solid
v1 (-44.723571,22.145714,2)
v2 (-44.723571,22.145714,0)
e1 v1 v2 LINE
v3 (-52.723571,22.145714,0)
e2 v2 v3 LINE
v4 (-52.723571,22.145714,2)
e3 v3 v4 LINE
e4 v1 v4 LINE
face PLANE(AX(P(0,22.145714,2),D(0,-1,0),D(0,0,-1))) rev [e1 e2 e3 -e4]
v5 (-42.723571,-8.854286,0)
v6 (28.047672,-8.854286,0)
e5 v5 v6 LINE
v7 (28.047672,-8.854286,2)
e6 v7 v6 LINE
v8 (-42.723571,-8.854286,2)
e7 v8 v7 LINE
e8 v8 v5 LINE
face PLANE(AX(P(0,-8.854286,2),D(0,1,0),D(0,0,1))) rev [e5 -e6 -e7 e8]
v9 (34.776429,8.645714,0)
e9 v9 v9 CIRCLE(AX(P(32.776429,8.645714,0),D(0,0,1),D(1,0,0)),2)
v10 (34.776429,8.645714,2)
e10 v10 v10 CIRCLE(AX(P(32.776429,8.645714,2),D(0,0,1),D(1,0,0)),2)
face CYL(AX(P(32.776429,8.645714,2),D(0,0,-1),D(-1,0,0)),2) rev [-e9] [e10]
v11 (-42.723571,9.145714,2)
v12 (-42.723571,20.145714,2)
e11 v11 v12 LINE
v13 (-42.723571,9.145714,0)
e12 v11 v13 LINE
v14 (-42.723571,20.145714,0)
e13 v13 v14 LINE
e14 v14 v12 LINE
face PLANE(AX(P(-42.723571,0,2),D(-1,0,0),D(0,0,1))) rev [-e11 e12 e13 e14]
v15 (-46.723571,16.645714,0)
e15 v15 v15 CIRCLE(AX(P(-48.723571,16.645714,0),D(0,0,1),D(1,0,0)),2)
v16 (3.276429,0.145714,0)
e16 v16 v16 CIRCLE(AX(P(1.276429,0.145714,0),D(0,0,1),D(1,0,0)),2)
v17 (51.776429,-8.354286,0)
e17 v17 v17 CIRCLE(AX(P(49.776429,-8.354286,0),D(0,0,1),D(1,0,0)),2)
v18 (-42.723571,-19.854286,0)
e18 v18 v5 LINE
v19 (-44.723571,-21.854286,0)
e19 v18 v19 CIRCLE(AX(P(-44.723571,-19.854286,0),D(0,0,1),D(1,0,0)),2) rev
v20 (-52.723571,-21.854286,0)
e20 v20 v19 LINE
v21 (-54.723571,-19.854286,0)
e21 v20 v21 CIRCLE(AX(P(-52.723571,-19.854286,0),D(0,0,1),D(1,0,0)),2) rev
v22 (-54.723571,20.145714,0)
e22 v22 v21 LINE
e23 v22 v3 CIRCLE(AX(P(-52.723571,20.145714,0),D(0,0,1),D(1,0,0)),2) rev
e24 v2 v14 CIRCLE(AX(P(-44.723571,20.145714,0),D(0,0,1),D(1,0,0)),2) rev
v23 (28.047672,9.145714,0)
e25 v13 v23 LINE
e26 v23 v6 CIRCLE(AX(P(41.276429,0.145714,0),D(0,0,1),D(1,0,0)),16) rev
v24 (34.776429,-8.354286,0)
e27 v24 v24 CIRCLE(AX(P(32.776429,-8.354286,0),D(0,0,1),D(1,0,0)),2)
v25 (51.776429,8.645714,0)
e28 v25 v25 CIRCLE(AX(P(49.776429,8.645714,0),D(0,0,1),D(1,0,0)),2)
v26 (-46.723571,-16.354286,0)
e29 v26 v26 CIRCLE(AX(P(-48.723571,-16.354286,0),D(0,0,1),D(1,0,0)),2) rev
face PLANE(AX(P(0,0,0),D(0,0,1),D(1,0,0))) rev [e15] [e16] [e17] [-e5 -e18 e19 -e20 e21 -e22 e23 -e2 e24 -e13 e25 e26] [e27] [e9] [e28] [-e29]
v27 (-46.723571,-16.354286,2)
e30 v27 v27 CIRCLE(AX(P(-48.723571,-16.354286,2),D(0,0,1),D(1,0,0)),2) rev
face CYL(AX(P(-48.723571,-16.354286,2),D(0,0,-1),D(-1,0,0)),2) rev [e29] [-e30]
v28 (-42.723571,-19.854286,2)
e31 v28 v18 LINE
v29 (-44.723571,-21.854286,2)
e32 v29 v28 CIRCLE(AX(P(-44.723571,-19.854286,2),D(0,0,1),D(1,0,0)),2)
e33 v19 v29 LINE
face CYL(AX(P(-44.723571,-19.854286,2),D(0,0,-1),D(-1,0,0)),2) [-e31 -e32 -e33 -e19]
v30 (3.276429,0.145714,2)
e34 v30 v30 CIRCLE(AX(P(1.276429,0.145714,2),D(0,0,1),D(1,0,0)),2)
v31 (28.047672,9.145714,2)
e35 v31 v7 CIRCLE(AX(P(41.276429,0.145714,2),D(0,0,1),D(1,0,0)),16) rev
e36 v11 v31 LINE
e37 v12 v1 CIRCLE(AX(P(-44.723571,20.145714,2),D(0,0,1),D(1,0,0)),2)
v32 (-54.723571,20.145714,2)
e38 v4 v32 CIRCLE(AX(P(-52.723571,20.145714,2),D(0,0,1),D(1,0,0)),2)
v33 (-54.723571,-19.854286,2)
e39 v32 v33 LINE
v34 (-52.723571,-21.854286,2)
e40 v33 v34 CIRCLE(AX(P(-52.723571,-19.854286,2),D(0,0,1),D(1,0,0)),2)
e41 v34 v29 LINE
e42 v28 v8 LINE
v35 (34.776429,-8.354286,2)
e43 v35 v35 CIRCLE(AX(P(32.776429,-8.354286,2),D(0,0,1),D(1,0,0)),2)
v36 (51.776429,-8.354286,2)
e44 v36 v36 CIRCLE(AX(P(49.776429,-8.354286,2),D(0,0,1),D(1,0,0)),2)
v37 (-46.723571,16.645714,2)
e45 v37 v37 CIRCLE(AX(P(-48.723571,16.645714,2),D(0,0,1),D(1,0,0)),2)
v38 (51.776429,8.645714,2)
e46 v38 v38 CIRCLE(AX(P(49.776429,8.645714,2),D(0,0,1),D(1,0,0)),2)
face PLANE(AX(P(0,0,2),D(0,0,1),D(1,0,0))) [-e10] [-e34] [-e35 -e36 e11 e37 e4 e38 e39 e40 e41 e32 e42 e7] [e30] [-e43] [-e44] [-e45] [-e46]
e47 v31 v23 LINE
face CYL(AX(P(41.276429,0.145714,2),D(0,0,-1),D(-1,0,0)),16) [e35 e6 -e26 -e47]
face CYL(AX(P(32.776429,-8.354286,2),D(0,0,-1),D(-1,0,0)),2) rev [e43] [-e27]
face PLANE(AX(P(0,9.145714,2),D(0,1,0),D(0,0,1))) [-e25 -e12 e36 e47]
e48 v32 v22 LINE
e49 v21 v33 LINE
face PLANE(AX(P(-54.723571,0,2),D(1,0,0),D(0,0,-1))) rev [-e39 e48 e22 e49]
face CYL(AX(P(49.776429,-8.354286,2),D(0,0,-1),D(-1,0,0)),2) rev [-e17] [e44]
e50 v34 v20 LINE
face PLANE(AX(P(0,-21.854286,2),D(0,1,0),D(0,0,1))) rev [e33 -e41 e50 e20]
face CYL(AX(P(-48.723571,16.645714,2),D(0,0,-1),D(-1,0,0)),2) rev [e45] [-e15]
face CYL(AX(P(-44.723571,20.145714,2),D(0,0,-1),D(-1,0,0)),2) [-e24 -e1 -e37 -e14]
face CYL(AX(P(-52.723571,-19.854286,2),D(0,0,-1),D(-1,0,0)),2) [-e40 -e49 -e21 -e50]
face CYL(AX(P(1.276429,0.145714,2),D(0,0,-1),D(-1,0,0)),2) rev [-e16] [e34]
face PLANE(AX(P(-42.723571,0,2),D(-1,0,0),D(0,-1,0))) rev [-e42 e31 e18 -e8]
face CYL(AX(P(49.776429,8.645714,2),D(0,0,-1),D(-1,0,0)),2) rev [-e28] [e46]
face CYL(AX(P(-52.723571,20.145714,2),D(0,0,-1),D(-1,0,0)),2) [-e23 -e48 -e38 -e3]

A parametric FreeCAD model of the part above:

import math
import FreeCAD as App
import Part
import Sketcher

V = App.Vector
Q = App.Units.Quantity


def edges_at(feature, points):
    """Names of the edges that pass closest to the given points."""
    edges = feature.Shape.Edges
    near = lambda p: min(range(len(edges)), key=lambda i: edges[i].distToShape(Part.Vertex(*p))[0])
    return sorted({f"Edge{near(p) + 1}" for p in points})

doc = App.newDocument("Part")
body = doc.addObject("PartDesign::Body", "Body")

sketch1 = body.newObject("Sketcher::SketchObject", "Sketch")
sketch1.AttachmentSupport = (doc.getObject("XY_Plane"), [""])
sketch1.MapMode = "FlatFace"
sketch1.addGeometry(Part.LineSegment(V(-42.7, 9.1, 0), V(-42.7, 22.1, 0)), False)
sketch1.addGeometry(Part.LineSegment(V(-42.7, 22.1, 0), V(-54.7, 22.1, 0)), False)
sketch1.addGeometry(Part.LineSegment(V(-54.7, 22.1, 0), V(-54.7, -21.9, 0)), False)
sketch1.addGeometry(Part.LineSegment(V(-54.7, -21.9, 0), V(-42.7, -21.9, 0)), False)
sketch1.addGeometry(Part.LineSegment(V(-42.7, -21.9, 0), V(-42.7, -8.9, 0)), False)
sketch1.addGeometry(Part.LineSegment(V(-42.7, -8.9, 0), V(28, -8.9, 0)), False)
sketch1.addGeometry(Part.ArcOfCircle(Part.Circle(V(41.3, 0.1, 0), V(0, 0, 1), 16), math.radians(-146), math.radians(146)), False)
sketch1.addGeometry(Part.LineSegment(V(28, 9.1, 0), V(-42.7, 9.1, 0)), False)
sketch1.addGeometry(Part.Circle(V(-48.7, -16.4, 0), V(0, 0, 1), 2), False)
sketch1.addGeometry(Part.Circle(V(32.8, -8.4, 0), V(0, 0, 1), 2), False)
sketch1.addGeometry(Part.Circle(V(49.8, -8.4, 0), V(0, 0, 1), 2), False)
sketch1.addGeometry(Part.Circle(V(-48.7, 16.6, 0), V(0, 0, 1), 2), False)
sketch1.addGeometry(Part.Circle(V(1.3, 0.1, 0), V(0, 0, 1), 2), False)
sketch1.addGeometry(Part.Circle(V(32.8, 8.6, 0), V(0, 0, 1), 2), False)
sketch1.addGeometry(Part.Circle(V(49.8, 8.6, 0), V(0, 0, 1), 2), False)
sketch1.addConstraint(Sketcher.Constraint("Coincident", 0, 2, 1, 1))
sketch1.addConstraint(Sketcher.Constraint("Coincident", 1, 2, 2, 1))
sketch1.addConstraint(Sketcher.Constraint("Coincident", 2, 2, 3, 1))
sketch1.addConstraint(Sketcher.Constraint("Coincident", 3, 2, 4, 1))
sketch1.addConstraint(Sketcher.Constraint("Coincident", 4, 2, 5, 1))
sketch1.addConstraint(Sketcher.Constraint("Coincident", 5, 2, 6, 1))
sketch1.addConstraint(Sketcher.Constraint("Coincident", 6, 2, 7, 1))
sketch1.addConstraint(Sketcher.Constraint("Coincident", 7, 2, 0, 1))
sketch1.addConstraint(Sketcher.Constraint("Vertical", 0))
sketch1.addConstraint(Sketcher.Constraint("Horizontal", 1))
sketch1.addConstraint(Sketcher.Constraint("Vertical", 2))
sketch1.addConstraint(Sketcher.Constraint("Horizontal", 3))
sketch1.addConstraint(Sketcher.Constraint("Vertical", 4))
sketch1.addConstraint(Sketcher.Constraint("Horizontal", 5))
sketch1.addConstraint(Sketcher.Constraint("Horizontal", 7))
sketch1.addConstraint(Sketcher.Constraint("Equal", 8, 9))
sketch1.addConstraint(Sketcher.Constraint("Equal", 9, 10))
sketch1.addConstraint(Sketcher.Constraint("Equal", 10, 11))
sketch1.addConstraint(Sketcher.Constraint("Equal", 11, 12))
sketch1.addConstraint(Sketcher.Constraint("Equal", 12, 13))
sketch1.addConstraint(Sketcher.Constraint("Equal", 13, 14))
sketch1.addConstraint(Sketcher.Constraint("Horizontal", 9, 3, 10, 3))
sketch1.addConstraint(Sketcher.Constraint("Horizontal", 6, 3, 12, 3))
sketch1.addConstraint(Sketcher.Constraint("Horizontal", 13, 3, 14, 3))
sketch1.addConstraint(Sketcher.Constraint("Vertical", 8, 3, 11, 3))
sketch1.addConstraint(Sketcher.Constraint("Vertical", 9, 3, 13, 3))
sketch1.addConstraint(Sketcher.Constraint("Vertical", 10, 3, 14, 3))
sketch1.addConstraint(Sketcher.Constraint("Vertical", 0, 2, 3, 2))
sketch1.addConstraint(Sketcher.Constraint("Vertical", 5, 2, 6, 2))
sketch1.addConstraint(Sketcher.Constraint("Equal", 0, 4))
sketch1.addConstraint(Sketcher.Constraint("Diameter", 8, Q("4 mm")))
sketch1.addConstraint(Sketcher.Constraint("Radius", 6, Q("16 mm")))
sketch1.addConstraint(Sketcher.Constraint("DistanceX", 1, 2, 1, 1, Q("12 mm")))
sketch1.addConstraint(Sketcher.Constraint("DistanceY", 0, 1, 0, 2, Q("13 mm")))
sketch1.addConstraint(Sketcher.Constraint("DistanceY", 2, 2, 2, 1, Q("44 mm")))
sketch1.addConstraint(Sketcher.Constraint("DistanceX", 8, 3, 6, 3, Q("90 mm")))
sketch1.addConstraint(Sketcher.Constraint("DistanceY", 8, 3, 9, 3, Q("8 mm")))
sketch1.addConstraint(Sketcher.Constraint("DistanceX", 9, 3, 10, 3, Q("17 mm")))
sketch1.addConstraint(Sketcher.Constraint("DistanceY", 8, 3, 11, 3, Q("33 mm")))
sketch1.addConstraint(Sketcher.Constraint("DistanceX", 12, 3, 6, 3, Q("40 mm")))
sketch1.addConstraint(Sketcher.Constraint("DistanceY", 9, 3, 13, 3, Q("17 mm")))
sketch1.addConstraint(Sketcher.Constraint("DistanceX", 11, 3, 0, 2, Q("6 mm")))
sketch1.addConstraint(Sketcher.Constraint("DistanceY", 8, 3, 6, 3, Q("16.5 mm")))
sketch1.addConstraint(Sketcher.Constraint("DistanceX", 9, 3, 6, 3, Q("8.5 mm")))
sketch1.addConstraint(Sketcher.Constraint("DistanceX", -1, 1, 6, 3, Q("41.276429 mm")))
sketch1.addConstraint(Sketcher.Constraint("DistanceY", -1, 1, 6, 3, Q("0.145714 mm")))
pad1 = body.newObject("PartDesign::Pad", "Pad")
pad1.Profile = sketch1
pad1.Length = 2
doc.recompute()

fillet = body.newObject("PartDesign::Fillet", "Fillet")
fillet.Base = (pad1, edges_at(pad1, [
    (-42.724, -21.854, 1),
    (-54.724, -21.854, 1),
    (-54.724, 22.146, 1),
    (-42.724, 22.146, 1),
]))
fillet.Radius = 2

doc.recompute()
